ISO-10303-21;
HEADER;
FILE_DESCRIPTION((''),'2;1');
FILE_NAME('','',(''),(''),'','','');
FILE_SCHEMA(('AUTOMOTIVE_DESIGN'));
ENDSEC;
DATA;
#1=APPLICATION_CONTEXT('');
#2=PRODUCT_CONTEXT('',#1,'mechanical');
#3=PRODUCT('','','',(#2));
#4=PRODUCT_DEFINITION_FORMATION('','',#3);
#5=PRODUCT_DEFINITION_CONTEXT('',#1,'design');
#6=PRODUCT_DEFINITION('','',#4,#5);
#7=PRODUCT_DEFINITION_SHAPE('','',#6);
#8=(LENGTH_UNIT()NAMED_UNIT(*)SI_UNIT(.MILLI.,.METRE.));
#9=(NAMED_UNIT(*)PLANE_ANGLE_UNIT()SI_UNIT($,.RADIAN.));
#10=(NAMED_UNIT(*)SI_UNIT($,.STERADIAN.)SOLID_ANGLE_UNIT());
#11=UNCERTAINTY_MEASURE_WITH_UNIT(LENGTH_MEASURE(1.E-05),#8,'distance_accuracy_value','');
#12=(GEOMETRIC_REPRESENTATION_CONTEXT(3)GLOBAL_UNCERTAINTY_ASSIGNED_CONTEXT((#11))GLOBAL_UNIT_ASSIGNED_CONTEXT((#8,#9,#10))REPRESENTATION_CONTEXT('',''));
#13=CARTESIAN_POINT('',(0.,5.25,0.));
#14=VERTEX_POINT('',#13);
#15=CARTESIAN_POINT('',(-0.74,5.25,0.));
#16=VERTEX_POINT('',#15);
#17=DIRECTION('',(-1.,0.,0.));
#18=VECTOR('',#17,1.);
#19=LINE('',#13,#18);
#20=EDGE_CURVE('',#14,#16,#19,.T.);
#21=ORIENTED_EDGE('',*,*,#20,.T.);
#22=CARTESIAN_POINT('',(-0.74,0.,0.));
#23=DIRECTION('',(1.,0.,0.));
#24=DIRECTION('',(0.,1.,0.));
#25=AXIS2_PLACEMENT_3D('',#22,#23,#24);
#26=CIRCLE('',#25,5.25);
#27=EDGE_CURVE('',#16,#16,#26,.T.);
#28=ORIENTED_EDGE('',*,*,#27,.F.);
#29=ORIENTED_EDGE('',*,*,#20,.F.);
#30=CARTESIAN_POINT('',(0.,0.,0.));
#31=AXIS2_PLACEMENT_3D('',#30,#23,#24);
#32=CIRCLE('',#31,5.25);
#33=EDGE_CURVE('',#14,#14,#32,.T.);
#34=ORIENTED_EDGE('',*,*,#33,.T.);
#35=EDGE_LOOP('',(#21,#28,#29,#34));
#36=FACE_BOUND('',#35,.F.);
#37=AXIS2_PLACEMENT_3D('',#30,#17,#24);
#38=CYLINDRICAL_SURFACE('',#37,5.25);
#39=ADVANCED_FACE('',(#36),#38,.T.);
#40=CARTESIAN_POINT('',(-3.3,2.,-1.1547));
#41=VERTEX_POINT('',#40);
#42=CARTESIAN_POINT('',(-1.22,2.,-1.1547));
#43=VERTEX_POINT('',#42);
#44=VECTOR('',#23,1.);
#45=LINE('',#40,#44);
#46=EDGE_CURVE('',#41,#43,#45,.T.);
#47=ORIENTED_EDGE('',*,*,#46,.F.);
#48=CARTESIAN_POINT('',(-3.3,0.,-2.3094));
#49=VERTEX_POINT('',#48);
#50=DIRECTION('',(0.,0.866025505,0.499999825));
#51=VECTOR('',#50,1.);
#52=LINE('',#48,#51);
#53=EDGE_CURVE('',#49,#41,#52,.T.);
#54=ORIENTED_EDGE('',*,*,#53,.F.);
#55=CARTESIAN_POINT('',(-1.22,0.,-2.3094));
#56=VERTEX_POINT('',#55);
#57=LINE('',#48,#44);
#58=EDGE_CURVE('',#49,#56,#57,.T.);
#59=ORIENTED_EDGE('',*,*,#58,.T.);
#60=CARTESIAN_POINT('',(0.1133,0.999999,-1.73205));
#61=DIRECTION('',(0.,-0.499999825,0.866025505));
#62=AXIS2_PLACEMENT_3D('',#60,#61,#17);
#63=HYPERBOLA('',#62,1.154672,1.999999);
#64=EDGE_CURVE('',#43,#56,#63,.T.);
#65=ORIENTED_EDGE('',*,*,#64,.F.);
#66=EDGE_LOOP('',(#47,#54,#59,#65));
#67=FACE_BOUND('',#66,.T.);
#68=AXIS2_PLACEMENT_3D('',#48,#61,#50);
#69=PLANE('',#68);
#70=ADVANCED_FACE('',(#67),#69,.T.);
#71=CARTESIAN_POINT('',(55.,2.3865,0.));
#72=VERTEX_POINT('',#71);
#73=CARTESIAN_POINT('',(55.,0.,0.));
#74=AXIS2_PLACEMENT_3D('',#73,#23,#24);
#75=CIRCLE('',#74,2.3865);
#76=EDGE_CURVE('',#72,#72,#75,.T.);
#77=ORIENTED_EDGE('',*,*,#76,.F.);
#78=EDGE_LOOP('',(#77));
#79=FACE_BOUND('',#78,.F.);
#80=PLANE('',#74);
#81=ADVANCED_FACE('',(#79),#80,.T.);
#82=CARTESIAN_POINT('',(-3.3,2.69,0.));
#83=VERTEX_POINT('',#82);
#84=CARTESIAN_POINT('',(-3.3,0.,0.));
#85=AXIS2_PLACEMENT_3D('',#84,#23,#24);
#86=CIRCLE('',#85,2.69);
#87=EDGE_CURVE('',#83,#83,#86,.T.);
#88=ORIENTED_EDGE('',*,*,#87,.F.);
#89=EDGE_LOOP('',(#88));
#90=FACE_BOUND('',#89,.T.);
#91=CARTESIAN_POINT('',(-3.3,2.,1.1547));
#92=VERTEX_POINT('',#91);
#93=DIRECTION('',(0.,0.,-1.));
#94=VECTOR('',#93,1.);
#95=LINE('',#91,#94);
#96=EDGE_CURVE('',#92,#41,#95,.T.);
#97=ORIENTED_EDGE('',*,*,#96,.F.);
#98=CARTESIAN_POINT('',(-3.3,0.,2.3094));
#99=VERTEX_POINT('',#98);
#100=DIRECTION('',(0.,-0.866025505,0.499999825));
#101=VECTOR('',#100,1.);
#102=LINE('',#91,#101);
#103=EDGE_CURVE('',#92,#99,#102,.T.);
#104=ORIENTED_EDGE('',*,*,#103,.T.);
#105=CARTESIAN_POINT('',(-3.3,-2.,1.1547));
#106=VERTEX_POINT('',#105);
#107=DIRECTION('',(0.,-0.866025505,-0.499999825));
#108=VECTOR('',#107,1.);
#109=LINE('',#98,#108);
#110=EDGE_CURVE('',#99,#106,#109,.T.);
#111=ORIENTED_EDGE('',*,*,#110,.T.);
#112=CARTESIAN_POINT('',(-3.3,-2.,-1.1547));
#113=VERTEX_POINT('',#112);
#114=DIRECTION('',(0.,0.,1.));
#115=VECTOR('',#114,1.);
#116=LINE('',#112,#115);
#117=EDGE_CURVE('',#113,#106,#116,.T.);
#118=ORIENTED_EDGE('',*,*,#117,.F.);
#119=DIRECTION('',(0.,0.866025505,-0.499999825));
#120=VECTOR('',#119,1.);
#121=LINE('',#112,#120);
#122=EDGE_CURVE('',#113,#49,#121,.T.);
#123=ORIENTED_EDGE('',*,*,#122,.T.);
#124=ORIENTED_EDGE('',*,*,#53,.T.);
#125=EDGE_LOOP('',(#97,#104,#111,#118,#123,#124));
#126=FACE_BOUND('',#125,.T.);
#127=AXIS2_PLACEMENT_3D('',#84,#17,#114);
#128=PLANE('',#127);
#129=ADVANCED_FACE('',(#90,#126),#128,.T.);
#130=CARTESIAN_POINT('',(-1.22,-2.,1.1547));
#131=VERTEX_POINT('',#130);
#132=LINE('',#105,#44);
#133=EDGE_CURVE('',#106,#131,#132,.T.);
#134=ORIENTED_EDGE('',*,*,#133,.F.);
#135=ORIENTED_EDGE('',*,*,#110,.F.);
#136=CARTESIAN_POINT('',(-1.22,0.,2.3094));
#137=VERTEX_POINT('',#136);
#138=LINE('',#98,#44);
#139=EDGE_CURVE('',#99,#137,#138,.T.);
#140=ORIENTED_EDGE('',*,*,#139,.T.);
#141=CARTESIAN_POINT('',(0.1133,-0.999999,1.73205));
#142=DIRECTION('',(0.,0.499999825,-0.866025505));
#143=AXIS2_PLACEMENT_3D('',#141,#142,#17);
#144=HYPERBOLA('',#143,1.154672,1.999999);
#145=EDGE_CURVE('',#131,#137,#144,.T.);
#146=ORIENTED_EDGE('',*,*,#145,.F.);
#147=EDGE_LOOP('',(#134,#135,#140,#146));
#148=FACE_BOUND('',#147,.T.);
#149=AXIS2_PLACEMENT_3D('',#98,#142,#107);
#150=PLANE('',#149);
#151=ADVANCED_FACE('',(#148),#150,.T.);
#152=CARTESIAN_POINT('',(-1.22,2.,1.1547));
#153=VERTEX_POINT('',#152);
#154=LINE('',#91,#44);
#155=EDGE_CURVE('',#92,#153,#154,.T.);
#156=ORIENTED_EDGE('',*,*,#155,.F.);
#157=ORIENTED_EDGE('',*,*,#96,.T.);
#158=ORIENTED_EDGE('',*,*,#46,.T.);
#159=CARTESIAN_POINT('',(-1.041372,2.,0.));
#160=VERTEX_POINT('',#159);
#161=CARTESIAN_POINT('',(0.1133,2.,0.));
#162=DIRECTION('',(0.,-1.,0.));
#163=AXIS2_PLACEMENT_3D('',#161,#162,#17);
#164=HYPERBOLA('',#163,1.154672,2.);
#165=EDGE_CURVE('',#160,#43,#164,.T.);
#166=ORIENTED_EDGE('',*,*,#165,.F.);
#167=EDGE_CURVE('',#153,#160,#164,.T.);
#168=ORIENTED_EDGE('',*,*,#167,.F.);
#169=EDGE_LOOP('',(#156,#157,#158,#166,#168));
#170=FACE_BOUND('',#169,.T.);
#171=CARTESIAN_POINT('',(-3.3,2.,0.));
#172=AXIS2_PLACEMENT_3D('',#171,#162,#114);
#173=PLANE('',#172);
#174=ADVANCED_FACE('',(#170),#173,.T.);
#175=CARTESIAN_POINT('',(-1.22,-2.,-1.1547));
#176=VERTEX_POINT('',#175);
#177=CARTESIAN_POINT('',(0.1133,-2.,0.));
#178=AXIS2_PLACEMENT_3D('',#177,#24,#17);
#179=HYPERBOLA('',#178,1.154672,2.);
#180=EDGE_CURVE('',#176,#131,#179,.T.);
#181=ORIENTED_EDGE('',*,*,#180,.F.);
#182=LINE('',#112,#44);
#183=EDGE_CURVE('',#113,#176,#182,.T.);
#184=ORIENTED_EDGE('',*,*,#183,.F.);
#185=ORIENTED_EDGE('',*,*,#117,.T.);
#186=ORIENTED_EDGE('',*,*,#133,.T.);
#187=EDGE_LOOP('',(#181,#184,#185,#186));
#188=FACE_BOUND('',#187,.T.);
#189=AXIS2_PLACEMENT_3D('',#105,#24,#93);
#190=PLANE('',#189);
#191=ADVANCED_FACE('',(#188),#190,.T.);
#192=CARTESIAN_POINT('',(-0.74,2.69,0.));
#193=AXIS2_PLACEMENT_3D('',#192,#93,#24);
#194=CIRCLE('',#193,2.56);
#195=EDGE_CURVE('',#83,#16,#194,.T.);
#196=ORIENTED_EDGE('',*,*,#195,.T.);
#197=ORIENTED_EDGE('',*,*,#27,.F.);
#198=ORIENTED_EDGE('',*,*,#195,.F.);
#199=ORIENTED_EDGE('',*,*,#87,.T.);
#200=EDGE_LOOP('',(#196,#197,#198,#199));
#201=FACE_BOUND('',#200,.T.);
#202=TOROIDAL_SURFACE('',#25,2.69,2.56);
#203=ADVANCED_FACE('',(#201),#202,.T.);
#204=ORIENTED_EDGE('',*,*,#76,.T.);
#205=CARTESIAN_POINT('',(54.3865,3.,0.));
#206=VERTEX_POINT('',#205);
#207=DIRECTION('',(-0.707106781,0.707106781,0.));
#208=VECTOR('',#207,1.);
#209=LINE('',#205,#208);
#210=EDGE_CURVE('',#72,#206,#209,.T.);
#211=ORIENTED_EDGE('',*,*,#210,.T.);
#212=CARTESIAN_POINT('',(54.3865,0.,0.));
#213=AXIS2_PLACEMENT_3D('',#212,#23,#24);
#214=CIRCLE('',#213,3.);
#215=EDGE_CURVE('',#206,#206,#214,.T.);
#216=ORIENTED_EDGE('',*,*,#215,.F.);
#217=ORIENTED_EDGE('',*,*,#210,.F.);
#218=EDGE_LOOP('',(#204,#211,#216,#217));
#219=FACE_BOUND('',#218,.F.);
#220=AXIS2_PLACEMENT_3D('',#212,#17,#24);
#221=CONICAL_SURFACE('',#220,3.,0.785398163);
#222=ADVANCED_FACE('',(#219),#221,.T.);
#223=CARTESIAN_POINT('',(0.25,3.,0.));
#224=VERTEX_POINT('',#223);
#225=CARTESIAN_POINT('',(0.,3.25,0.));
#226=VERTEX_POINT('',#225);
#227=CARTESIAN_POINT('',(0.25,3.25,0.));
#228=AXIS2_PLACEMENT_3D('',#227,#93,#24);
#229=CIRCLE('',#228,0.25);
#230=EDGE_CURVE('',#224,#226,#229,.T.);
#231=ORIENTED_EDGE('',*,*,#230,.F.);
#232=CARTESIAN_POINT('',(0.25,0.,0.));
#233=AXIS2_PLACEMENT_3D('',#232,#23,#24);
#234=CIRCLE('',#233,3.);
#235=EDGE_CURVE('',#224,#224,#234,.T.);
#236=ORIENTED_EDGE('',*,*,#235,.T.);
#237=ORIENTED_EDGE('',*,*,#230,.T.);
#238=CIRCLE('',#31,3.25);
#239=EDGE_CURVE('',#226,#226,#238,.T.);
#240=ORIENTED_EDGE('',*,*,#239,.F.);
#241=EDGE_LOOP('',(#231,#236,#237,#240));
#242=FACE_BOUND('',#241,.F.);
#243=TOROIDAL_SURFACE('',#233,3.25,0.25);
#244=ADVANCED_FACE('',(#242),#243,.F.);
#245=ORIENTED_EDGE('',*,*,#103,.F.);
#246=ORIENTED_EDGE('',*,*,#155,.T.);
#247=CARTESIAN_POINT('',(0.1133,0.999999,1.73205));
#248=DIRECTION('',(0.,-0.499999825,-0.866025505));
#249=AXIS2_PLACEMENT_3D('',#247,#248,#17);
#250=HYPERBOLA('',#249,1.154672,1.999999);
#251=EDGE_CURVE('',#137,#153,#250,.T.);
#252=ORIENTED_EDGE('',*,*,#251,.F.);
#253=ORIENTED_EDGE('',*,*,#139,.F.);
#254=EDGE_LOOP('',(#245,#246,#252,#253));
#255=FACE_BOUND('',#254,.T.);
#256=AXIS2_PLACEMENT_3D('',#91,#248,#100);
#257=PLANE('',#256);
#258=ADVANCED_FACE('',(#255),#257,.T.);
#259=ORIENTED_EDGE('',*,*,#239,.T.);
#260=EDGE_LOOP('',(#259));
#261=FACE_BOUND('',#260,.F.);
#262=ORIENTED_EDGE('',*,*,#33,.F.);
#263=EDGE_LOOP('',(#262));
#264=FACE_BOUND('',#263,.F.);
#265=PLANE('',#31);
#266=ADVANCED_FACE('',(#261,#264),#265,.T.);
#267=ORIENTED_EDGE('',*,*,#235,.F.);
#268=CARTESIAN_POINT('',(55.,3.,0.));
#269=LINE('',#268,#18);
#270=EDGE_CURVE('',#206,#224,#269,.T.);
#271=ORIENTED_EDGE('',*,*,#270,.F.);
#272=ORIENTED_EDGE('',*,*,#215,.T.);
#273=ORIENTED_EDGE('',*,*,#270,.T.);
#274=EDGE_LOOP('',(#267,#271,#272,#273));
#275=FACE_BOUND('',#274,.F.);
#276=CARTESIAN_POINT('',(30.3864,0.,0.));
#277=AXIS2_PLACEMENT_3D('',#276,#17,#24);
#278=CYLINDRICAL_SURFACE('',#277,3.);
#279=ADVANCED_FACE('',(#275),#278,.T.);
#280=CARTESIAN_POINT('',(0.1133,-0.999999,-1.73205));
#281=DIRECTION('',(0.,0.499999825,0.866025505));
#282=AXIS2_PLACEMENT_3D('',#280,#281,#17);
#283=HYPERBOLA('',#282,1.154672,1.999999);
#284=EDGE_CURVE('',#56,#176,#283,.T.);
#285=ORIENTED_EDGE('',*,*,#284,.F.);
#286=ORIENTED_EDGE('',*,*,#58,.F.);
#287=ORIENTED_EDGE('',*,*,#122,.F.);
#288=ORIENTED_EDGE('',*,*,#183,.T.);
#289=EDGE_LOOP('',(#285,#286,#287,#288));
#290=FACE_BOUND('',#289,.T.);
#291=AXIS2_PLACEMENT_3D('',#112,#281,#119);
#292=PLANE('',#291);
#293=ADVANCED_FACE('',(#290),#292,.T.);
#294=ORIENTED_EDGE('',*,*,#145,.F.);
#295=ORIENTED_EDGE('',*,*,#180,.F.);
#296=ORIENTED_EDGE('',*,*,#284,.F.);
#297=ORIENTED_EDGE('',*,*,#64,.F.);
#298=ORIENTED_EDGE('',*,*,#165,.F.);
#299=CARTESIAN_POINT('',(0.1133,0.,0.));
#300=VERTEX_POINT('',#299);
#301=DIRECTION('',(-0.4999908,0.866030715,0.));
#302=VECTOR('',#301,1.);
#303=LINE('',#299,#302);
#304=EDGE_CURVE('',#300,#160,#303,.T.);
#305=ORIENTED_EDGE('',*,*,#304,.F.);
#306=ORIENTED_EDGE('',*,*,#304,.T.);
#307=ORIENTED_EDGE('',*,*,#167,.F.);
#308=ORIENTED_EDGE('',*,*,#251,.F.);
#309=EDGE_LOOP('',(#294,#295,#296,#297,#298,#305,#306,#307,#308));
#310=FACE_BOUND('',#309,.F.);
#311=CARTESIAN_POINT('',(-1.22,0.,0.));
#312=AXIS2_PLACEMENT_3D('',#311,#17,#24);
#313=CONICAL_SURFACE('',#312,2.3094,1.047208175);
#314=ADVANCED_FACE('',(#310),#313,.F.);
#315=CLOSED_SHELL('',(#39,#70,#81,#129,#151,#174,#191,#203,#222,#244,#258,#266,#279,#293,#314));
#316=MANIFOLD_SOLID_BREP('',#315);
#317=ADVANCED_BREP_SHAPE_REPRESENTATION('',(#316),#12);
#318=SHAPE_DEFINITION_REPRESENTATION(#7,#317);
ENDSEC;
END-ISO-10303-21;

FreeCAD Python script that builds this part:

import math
import FreeCAD as App
import Part
import Sketcher

V = App.Vector
Q = App.Units.Quantity


def edges_at(feature, points):
    """Names of the edges that pass closest to the given points."""
    edges = feature.Shape.Edges
    near = lambda p: min(range(len(edges)), key=lambda i: edges[i].distToShape(Part.Vertex(*p))[0])
    return sorted({f"Edge{near(p) + 1}" for p in points})

doc = App.newDocument("Part")
body = doc.addObject("PartDesign::Body", "Body")

# Sketch on XY plane
sketch1 = doc.addObject("Sketcher::SketchObject", "Sketch")
body.addObject(sketch1)
sketch1.AttachmentSupport = (doc.XY_Plane, [""])
sketch1.MapMode = "FlatFace"
sketch1.addGeometry([
    Part.LineSegment(V(0.1, 0, 0), V(55, 0, 0)),  # 0
    Part.LineSegment(V(55, 0, 0), V(55, 3, 0)),  # 1
    Part.LineSegment(V(55, 3, 0), V(0, 3, 0)),  # 2
    Part.LineSegment(V(0, 3, 0), V(0, 5.2, 0)),  # 3
    Part.LineSegment(V(0, 5.2, 0), V(-3.3, 5.2, 0)),  # 4
    Part.LineSegment(V(-3.3, 5.2, 0), V(-3.3, 2.3, 0)),  # 5
    Part.LineSegment(V(-3.3, 2.3, 0), V(-1.2, 2.3, 0)),  # 6
    Part.LineSegment(V(-1.2, 2.3, 0), V(0.1, 0, 0)),  # 7
], False)
sketch1.addConstraint([
    Sketcher.Constraint("Coincident", 0, 2, 1, 1),
    Sketcher.Constraint("Coincident", 1, 2, 2, 1),
    Sketcher.Constraint("Coincident", 2, 2, 3, 1),
    Sketcher.Constraint("Coincident", 3, 2, 4, 1),
    Sketcher.Constraint("Coincident", 4, 2, 5, 1),
    Sketcher.Constraint("Coincident", 5, 2, 6, 1),
    Sketcher.Constraint("Coincident", 6, 2, 7, 1),
    Sketcher.Constraint("Coincident", 7, 2, 0, 1),
    Sketcher.Constraint("Horizontal", 0),
    Sketcher.Constraint("Vertical", 1),
    Sketcher.Constraint("Horizontal", 2),
    Sketcher.Constraint("Vertical", 3),
    Sketcher.Constraint("Horizontal", 4),
    Sketcher.Constraint("Vertical", 5),
    Sketcher.Constraint("Horizontal", 6),
    Sketcher.Constraint("PointOnObject", 0, 2, -1),
    Sketcher.Constraint("PointOnObject", 2, 2, -2),
    Sketcher.Constraint("DistanceX", 2, 2, 2, 1, 55.0),
    Sketcher.Constraint("DistanceX", 4, 2, 4, 1, 3.3),
    Sketcher.Constraint("DistanceX", 6, 1, 6, 2, 2.08),
    Sketcher.Constraint("DistanceY", 1, 1, 1, 2, 3.0),
    Sketcher.Constraint("Angle", 7, Q("-60.0006 deg")),
    Sketcher.Constraint("DistanceY", 3, 1, 3, 2, 2.25),
    Sketcher.Constraint("DistanceX", 0, 1, 0, 2, 54.8867),
])
revolution = doc.addObject("PartDesign::Revolution", "Revolution")
body.addObject(revolution)
revolution.Profile = sketch1
revolution.ReferenceAxis = (sketch1, ["H_Axis"])
revolution.Angle = 360

# Sketch on YZ plane
sketch2 = doc.addObject("Sketcher::SketchObject", "Sketch001")
body.addObject(sketch2)
sketch2.AttachmentSupport = (doc.YZ_Plane, [""])
sketch2.MapMode = "FlatFace"
sketch2.AttachmentOffset = App.Placement(V(0, 0, -3.3), App.Rotation())
sketch2.addGeometry([
    Part.LineSegment(V(2, 1.2, 0), V(0, 2.3, 0)),  # 0
    Part.ArcOfCircle(Part.Circle(V(0, 0, 0), V(0, 0, 1), 2.3), math.radians(30), math.radians(90)),  # 1
    Part.ArcOfCircle(Part.Circle(V(0, 0, 0), V(0, 0, 1), 2.3), math.radians(90), math.radians(150)),  # 2
    Part.LineSegment(V(0, 2.3, 0), V(-2, 1.2, 0)),  # 3
    Part.ArcOfCircle(Part.Circle(V(0, 0, 0), V(0, 0, 1), 2.3), math.radians(-30), math.radians(30)),  # 4
    Part.LineSegment(V(2, -1.2, 0), V(2, 1.2, 0)),  # 5
    Part.LineSegment(V(-2, 1.2, 0), V(-2, -1.2, 0)),  # 6
    Part.ArcOfCircle(Part.Circle(V(0, 0, 0), V(0, 0, 1), 2.3), math.radians(150), math.radians(210)),  # 7
    Part.LineSegment(V(-2, -1.2, 0), V(0, -2.3, 0)),  # 8
    Part.ArcOfCircle(Part.Circle(V(0, 0, 0), V(0, 0, 1), 2.3), math.radians(-150), math.radians(-90)),  # 9
    Part.ArcOfCircle(Part.Circle(V(0, 0, 0), V(0, 0, 1), 2.3), math.radians(-90), math.radians(-30)),  # 10
    Part.LineSegment(V(0, -2.3, 0), V(2, -1.2, 0)),  # 11
], False)
sketch2.addConstraint([
    Sketcher.Constraint("Coincident", 0, 1, 1, 1),
    Sketcher.Constraint("Coincident", 1, 2, 0, 2),
    Sketcher.Constraint("Coincident", 2, 1, 3, 1),
    Sketcher.Constraint("Coincident", 3, 2, 2, 2),
    Sketcher.Constraint("Coincident", 4, 1, 5, 1),
    Sketcher.Constraint("Coincident", 5, 2, 4, 2),
    Sketcher.Constraint("Coincident", 6, 1, 7, 1),
    Sketcher.Constraint("Coincident", 7, 2, 6, 2),
    Sketcher.Constraint("Coincident", 8, 1, 9, 1),
    Sketcher.Constraint("Coincident", 9, 2, 8, 2),
    Sketcher.Constraint("Coincident", 10, 1, 11, 1),
    Sketcher.Constraint("Coincident", 11, 2, 10, 2),
    Sketcher.Constraint("Vertical", 5),
    Sketcher.Constraint("Vertical", 6),
    Sketcher.Constraint("Coincident", 1, 3, -1, 1),
    Sketcher.Constraint("Coincident", 2, 3, -1, 1),
    Sketcher.Constraint("Coincident", 4, 3, -1, 1),
    Sketcher.Constraint("Coincident", 7, 3, -1, 1),
    Sketcher.Constraint("Coincident", 9, 3, -1, 1),
    Sketcher.Constraint("Coincident", 10, 3, -1, 1),
    Sketcher.Constraint("Coincident", 2, 1, 1, 2),
    Sketcher.Constraint("Coincident", 5, 2, 0, 1),
    Sketcher.Constraint("Coincident", 6, 1, 3, 2),
    Sketcher.Constraint("Coincident", 8, 1, 7, 2),
    Sketcher.Constraint("Coincident", 10, 1, 9, 2),
    Sketcher.Constraint("PointOnObject", 1, 2, -2),
    Sketcher.Constraint("PointOnObject", 9, 2, -2),
    Sketcher.Constraint("Parallel", 0, 8),
    Sketcher.Constraint("Parallel", 3, 11),
    Sketcher.Constraint("Angle", 0, Q("150 deg")),
    Sketcher.Constraint("DistanceX", -1, 1, 0, 1, 2.0),
])
pad1 = doc.addObject("PartDesign::Pad", "Pad")
body.addObject(pad1)
pad1.Profile = sketch2
pad1.Length = 2.2586
doc.recompute()

fillet = doc.addObject("PartDesign::Fillet", "Fillet")
body.addObject(fillet)
fillet.Base = (pad1, edges_at(pad1, [(-3.3, -5.25, 0)]))
fillet.Radius = 2.56
doc.recompute()

chamfer = doc.addObject("PartDesign::Chamfer", "Chamfer")
body.addObject(chamfer)
chamfer.Base = (fillet, edges_at(fillet, [(55, -3, 0)]))
chamfer.ChamferType = "Two distances"
chamfer.Size = 0.6135
chamfer.Size2 = 0.6135
doc.recompute()

fillet2 = doc.addObject("PartDesign::Fillet", "Fillet001")
body.addObject(fillet2)
fillet2.Base = (chamfer, edges_at(chamfer, [(0, -3, 0)]))
fillet2.Radius = 0.25

doc.recompute()
